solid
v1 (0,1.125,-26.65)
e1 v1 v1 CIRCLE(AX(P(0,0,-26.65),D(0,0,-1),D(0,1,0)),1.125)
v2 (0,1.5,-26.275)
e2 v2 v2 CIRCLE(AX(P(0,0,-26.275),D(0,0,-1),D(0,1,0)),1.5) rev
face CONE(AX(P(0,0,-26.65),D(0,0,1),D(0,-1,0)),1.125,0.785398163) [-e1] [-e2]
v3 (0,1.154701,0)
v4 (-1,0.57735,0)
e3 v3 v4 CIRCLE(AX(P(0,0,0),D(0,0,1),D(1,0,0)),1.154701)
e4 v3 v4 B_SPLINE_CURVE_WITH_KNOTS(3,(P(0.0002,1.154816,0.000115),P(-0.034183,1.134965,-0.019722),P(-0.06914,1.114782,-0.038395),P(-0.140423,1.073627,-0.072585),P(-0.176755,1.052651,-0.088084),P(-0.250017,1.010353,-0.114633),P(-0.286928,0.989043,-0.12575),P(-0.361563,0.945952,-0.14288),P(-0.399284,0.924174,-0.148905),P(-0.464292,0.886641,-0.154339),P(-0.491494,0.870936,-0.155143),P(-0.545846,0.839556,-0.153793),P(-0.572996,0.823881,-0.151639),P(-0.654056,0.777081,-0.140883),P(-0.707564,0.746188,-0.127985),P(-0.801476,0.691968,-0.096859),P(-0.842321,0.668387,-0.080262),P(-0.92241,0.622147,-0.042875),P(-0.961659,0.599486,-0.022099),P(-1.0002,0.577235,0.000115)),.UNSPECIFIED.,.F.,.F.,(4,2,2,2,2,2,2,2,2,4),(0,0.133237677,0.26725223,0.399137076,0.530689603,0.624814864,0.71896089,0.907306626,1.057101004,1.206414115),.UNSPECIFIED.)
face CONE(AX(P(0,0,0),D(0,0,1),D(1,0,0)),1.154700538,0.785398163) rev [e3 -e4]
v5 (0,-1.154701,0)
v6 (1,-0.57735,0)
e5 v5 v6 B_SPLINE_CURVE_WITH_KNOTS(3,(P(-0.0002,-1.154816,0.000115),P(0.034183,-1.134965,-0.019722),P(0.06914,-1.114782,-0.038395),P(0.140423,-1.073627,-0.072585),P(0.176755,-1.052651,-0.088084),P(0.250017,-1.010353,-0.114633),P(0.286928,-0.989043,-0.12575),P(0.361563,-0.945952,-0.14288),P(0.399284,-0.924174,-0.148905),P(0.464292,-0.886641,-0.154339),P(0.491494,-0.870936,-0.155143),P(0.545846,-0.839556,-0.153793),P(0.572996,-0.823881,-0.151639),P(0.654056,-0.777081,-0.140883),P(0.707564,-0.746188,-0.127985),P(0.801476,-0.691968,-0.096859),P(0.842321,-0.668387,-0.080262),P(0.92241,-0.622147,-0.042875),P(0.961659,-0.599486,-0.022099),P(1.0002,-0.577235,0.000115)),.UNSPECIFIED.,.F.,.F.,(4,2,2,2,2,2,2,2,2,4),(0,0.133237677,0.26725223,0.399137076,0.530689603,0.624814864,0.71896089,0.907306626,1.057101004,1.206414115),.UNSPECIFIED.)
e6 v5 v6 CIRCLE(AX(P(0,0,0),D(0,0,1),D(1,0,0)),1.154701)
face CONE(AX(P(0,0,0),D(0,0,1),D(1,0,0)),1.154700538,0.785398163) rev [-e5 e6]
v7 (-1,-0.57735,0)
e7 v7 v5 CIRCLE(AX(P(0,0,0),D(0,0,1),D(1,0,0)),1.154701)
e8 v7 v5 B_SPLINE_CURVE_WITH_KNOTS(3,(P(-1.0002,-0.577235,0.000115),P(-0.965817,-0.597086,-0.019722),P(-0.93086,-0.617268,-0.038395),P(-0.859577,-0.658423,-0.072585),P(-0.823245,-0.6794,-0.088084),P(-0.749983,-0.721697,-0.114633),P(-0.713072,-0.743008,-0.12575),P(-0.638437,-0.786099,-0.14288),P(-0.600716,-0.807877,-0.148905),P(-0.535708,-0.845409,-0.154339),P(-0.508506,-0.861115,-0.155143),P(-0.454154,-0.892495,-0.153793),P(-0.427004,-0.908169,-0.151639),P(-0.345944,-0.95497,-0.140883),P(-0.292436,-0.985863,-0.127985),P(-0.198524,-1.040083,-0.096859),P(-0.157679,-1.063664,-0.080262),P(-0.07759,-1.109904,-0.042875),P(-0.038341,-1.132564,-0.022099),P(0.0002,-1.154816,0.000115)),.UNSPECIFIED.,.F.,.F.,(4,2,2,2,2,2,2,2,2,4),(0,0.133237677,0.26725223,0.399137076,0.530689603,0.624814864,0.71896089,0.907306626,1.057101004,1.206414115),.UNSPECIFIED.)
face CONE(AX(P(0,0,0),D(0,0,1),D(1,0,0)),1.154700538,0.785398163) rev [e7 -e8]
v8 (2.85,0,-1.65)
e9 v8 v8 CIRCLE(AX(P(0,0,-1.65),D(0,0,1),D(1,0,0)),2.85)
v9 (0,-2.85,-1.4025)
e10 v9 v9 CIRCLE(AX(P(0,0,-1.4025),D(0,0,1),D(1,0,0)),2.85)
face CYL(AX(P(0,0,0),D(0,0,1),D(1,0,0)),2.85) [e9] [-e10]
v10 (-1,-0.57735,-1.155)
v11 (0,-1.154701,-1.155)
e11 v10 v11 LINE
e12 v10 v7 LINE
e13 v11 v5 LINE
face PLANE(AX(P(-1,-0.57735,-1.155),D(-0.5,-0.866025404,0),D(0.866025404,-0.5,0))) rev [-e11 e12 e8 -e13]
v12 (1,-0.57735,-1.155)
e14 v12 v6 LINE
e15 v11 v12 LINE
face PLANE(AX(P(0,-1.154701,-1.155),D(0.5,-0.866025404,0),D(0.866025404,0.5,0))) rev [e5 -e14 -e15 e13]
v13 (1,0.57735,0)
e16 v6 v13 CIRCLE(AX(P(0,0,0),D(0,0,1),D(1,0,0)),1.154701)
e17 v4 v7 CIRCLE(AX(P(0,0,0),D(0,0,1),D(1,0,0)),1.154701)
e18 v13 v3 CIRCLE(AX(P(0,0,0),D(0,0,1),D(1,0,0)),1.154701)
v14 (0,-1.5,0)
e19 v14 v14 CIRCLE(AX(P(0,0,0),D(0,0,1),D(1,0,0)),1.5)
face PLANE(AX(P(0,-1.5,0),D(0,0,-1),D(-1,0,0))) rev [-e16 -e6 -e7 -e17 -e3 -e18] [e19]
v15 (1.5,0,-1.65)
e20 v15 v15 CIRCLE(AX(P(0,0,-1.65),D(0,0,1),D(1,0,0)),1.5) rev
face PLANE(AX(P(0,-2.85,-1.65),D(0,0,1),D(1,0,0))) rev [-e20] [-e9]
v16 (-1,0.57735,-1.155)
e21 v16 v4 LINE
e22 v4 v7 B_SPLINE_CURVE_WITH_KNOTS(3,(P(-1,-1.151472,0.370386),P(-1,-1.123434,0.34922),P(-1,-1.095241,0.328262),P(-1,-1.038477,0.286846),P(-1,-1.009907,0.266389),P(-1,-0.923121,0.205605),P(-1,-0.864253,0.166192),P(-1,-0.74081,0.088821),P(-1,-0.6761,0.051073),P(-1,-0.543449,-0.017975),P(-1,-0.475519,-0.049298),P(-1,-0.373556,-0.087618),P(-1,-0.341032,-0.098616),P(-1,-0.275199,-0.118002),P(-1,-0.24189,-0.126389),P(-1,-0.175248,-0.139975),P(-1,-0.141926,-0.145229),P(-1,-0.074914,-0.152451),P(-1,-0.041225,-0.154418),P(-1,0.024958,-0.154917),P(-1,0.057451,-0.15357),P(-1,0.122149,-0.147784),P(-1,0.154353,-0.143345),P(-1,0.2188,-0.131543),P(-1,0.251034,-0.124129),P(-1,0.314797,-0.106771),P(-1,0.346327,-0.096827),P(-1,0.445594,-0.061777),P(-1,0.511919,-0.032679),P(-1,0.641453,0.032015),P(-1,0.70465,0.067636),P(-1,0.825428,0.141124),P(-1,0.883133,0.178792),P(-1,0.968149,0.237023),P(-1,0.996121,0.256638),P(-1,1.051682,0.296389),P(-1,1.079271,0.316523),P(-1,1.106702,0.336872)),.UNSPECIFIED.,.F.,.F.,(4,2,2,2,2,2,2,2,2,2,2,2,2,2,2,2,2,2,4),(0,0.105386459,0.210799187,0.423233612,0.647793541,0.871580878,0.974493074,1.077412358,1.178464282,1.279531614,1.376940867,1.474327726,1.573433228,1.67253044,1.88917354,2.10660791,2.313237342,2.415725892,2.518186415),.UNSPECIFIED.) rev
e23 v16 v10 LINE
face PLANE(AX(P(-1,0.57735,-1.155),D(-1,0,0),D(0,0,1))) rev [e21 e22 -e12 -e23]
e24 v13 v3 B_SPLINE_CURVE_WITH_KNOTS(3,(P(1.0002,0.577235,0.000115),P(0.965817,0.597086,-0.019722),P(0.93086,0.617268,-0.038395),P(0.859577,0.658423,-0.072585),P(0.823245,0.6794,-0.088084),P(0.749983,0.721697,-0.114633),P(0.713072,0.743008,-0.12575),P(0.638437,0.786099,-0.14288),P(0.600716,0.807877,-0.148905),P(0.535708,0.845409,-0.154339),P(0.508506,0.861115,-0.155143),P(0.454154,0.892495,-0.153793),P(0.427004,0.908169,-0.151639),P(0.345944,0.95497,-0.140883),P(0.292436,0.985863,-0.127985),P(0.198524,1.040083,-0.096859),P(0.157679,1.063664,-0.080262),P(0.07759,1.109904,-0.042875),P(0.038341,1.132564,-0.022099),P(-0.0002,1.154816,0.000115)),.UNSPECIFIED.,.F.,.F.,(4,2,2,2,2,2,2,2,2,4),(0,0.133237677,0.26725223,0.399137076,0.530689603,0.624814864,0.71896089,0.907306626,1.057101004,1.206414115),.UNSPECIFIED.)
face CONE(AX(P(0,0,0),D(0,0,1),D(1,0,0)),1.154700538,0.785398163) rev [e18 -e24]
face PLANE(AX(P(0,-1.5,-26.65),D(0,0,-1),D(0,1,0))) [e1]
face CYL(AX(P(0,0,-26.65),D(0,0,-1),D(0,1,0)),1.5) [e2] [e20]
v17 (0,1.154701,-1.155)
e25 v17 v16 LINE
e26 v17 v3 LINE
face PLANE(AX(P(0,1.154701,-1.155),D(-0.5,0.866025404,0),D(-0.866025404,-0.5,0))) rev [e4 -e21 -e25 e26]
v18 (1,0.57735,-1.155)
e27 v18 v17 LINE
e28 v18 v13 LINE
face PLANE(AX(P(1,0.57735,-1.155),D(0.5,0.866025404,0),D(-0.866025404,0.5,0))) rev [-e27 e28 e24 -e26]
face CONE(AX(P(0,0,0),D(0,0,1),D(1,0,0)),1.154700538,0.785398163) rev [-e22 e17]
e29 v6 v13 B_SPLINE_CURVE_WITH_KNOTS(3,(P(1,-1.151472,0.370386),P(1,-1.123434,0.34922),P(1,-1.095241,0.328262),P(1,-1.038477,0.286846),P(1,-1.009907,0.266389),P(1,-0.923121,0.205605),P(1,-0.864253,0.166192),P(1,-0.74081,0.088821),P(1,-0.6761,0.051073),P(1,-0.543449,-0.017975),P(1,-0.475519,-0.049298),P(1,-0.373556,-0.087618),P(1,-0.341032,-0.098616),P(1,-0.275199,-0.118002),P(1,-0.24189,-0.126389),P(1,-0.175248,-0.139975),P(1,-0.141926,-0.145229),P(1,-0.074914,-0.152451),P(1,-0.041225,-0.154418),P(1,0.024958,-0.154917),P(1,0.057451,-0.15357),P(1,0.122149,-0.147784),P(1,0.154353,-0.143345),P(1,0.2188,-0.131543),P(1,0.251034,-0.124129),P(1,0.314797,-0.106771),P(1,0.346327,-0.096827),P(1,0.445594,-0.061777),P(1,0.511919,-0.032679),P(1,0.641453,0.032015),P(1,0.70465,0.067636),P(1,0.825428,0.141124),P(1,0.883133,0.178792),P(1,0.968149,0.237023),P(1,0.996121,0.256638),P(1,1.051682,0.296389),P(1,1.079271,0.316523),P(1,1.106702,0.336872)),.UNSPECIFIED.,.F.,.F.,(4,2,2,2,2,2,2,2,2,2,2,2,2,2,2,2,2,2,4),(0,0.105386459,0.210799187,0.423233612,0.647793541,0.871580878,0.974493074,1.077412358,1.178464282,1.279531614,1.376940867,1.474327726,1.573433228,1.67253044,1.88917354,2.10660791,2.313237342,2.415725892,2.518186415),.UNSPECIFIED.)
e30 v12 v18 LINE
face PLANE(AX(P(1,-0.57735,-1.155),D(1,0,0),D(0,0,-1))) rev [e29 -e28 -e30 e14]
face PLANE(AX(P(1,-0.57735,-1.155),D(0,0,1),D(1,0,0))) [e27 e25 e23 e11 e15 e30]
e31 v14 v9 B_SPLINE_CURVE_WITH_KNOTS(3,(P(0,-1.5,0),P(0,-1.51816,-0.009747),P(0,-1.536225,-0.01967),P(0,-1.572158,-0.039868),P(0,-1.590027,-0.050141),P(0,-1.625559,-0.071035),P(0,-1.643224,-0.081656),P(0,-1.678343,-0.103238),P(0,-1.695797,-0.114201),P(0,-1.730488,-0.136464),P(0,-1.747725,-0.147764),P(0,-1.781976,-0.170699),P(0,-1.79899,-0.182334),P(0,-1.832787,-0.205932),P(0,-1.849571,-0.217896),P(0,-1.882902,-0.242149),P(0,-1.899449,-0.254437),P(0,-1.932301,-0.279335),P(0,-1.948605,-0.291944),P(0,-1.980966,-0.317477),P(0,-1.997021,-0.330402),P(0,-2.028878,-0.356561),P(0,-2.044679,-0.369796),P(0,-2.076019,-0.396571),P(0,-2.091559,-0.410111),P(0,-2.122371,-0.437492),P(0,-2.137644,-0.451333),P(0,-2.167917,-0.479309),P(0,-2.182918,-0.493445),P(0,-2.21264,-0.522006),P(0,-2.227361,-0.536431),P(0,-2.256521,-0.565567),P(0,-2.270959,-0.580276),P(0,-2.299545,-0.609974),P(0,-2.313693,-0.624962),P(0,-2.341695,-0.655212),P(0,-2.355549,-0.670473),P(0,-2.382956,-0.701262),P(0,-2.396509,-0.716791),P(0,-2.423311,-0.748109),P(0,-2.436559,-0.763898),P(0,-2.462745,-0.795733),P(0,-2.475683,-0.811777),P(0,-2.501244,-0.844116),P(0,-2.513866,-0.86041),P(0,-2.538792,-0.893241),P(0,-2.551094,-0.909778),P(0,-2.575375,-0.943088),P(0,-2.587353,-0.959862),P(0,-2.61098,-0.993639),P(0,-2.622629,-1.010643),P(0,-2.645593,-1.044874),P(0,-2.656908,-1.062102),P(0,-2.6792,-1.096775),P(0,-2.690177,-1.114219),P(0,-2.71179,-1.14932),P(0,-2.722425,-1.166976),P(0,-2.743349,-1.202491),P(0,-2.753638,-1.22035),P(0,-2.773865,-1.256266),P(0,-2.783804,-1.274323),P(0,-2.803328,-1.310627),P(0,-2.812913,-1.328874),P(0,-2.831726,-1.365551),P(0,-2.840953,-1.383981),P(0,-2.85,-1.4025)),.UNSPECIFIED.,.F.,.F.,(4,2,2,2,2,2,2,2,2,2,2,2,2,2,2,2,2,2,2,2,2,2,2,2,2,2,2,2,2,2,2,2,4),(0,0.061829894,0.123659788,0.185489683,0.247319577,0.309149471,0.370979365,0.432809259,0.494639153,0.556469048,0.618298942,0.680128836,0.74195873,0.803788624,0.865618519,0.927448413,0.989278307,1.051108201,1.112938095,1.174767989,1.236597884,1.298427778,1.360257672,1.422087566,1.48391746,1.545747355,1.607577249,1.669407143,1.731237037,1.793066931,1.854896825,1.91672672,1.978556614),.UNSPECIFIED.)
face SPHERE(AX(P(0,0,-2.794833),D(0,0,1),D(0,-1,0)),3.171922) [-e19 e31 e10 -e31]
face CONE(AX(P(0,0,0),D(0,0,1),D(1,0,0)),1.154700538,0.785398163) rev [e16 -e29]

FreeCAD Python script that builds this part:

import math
import FreeCAD as App
import Part
import Sketcher
from FreeCAD import Vector
Q = App.Units.Quantity


def edges_at(feature, points):
    """Names of the edges that pass closest to the given points."""
    edges = feature.Shape.Edges
    near = lambda p: min(range(len(edges)), key=lambda i: edges[i].distToShape(Part.Vertex(*p))[0])
    return sorted({f"Edge{near(p) + 1}" for p in points})

doc = App.newDocument("Part")
body = doc.addObject("PartDesign::Body", "Body")

# Sketch on YZ plane
sketch1 = body.newObject("Sketcher::SketchObject", "Sketch")
sketch1.AttachmentSupport = (doc.getObject("YZ_Plane"), [""])
sketch1.MapMode = "FlatFace"
sketch1.addGeometry(Part.LineSegment(Vector(1.5, -1.6, 0), Vector(0, -1.6, 0)), False)
sketch1.addGeometry(Part.LineSegment(Vector(0, -1.6, 0), Vector(0, -26.6, 0)), False)
sketch1.addGeometry(Part.LineSegment(Vector(0, -26.6, 0), Vector(1.5, -26.6, 0)), False)
sketch1.addGeometry(Part.LineSegment(Vector(1.5, -26.6, 0), Vector(1.5, -1.6, 0)), False)
sketch1.addConstraint(Sketcher.Constraint("Coincident", 0, 2, 1, 1))
sketch1.addConstraint(Sketcher.Constraint("Coincident", 1, 2, 2, 1))
sketch1.addConstraint(Sketcher.Constraint("Coincident", 2, 2, 3, 1))
sketch1.addConstraint(Sketcher.Constraint("Coincident", 3, 2, 0, 1))
sketch1.addConstraint(Sketcher.Constraint("Horizontal", 0))
sketch1.addConstraint(Sketcher.Constraint("Vertical", 1))
sketch1.addConstraint(Sketcher.Constraint("Horizontal", 2))
sketch1.addConstraint(Sketcher.Constraint("Vertical", 3))
sketch1.addConstraint(Sketcher.Constraint("PointOnObject", 0, 2, -2))
sketch1.addConstraint(Sketcher.Constraint("DistanceY", 1, 2, 1, 1, 25.0))
sketch1.addConstraint(Sketcher.Constraint("DistanceX", 0, 2, 0, 1, 1.5))
sketch1.addConstraint(Sketcher.Constraint("DistanceY", 0, 2, -1, 1, 1.65))
revolution = body.newObject("PartDesign::Revolution", "Revolution")
revolution.Profile = sketch1
revolution.ReferenceAxis = (sketch1, ["V_Axis"])
revolution.Angle = 360
doc.recompute()

chamfer = body.newObject("PartDesign::Chamfer", "Chamfer")
chamfer.Base = (revolution, edges_at(revolution, [(0, -1.5, -26.65)]))
chamfer.Size = 0.375

# Sketch on YZ plane
sketch2 = body.newObject("Sketcher::SketchObject", "Sketch001")
sketch2.AttachmentSupport = (doc.getObject("YZ_Plane"), [""])
sketch2.MapMode = "FlatFace"
sketch2.addGeometry(Part.LineSegment(Vector(2.85, -1.65, 0), Vector(2.85, -1.4, 0)), False)
sketch2.addGeometry(Part.ArcOfCircle(Part.Circle(Vector(0, -2.79, 0), Vector(0, 0, 1), 3.17), math.radians(26), math.radians(62)), False)
sketch2.addGeometry(Part.LineSegment(Vector(1.5, 0, 0), Vector(0, 0, 0)), False)
sketch2.addGeometry(Part.LineSegment(Vector(0, 0, 0), Vector(0, -1.65, 0)), False)
sketch2.addGeometry(Part.LineSegment(Vector(0, -1.65, 0), Vector(2.85, -1.65, 0)), False)
sketch2.addConstraint(Sketcher.Constraint("Coincident", 0, 2, 1, 1))
sketch2.addConstraint(Sketcher.Constraint("Coincident", 1, 2, 2, 1))
sketch2.addConstraint(Sketcher.Constraint("Coincident", 2, 2, 3, 1))
sketch2.addConstraint(Sketcher.Constraint("Coincident", 3, 2, 4, 1))
sketch2.addConstraint(Sketcher.Constraint("Coincident", 4, 2, 0, 1))
sketch2.addConstraint(Sketcher.Constraint("Vertical", 0))
sketch2.addConstraint(Sketcher.Constraint("Horizontal", 2))
sketch2.addConstraint(Sketcher.Constraint("Vertical", 3))
sketch2.addConstraint(Sketcher.Constraint("Horizontal", 4))
sketch2.addConstraint(Sketcher.Constraint("Coincident", 2, 2, -1, 1))
sketch2.addConstraint(Sketcher.Constraint("PointOnObject", 1, 3, -2))
sketch2.addConstraint(Sketcher.Constraint("DistanceX", 2, 2, 2, 1, 1.5))
sketch2.addConstraint(Sketcher.Constraint("DistanceX", 4, 1, 4, 2, 2.85))
sketch2.addConstraint(Sketcher.Constraint("DistanceY", 3, 2, 3, 1, 1.65))
sketch2.addConstraint(Sketcher.Constraint("DistanceY", 0, 1, 0, 2, 0.2475))
revolution2 = body.newObject("PartDesign::Revolution", "Revolution001")
revolution2.Profile = sketch2
revolution2.ReferenceAxis = (sketch2, ["V_Axis"])
revolution2.Angle = 360

# Sketch on XY plane
sketch3 = body.newObject("Sketcher::SketchObject", "Sketch002")
sketch3.AttachmentSupport = (doc.getObject("XY_Plane"), [""])
sketch3.MapMode = "FlatFace"
sketch3.addGeometry(Part.LineSegment(Vector(1, -0.6, 0), Vector(1, 0.6, 0)), False)
sketch3.addGeometry(Part.LineSegment(Vector(1, 0.6, 0), Vector(0, 1.2, 0)), False)
sketch3.addGeometry(Part.LineSegment(Vector(0, 1.2, 0), Vector(-1, 0.6, 0)), False)
sketch3.addGeometry(Part.LineSegment(Vector(-1, 0.6, 0), Vector(-1, -0.6, 0)), False)
sketch3.addGeometry(Part.LineSegment(Vector(-1, -0.6, 0), Vector(0, -1.2, 0)), False)
sketch3.addGeometry(Part.LineSegment(Vector(0, -1.2, 0), Vector(1, -0.6, 0)), False)
sketch3.addConstraint(Sketcher.Constraint("Coincident", 0, 2, 1, 1))
sketch3.addConstraint(Sketcher.Constraint("Coincident", 1, 2, 2, 1))
sketch3.addConstraint(Sketcher.Constraint("Coincident", 2, 2, 3, 1))
sketch3.addConstraint(Sketcher.Constraint("Coincident", 3, 2, 4, 1))
sketch3.addConstraint(Sketcher.Constraint("Coincident", 4, 2, 5, 1))
sketch3.addConstraint(Sketcher.Constraint("Coincident", 5, 2, 0, 1))
sketch3.addConstraint(Sketcher.Constraint("Vertical", 0))
sketch3.addConstraint(Sketcher.Constraint("Vertical", 3))
sketch3.addConstraint(Sketcher.Constraint("Symmetric", 0, 2, 3, 2, -1, 1))
sketch3.addConstraint(Sketcher.Constraint("Symmetric", 1, 2, 4, 2, -1, 1))
sketch3.addConstraint(Sketcher.Constraint("PointOnObject", 1, 2, -2))
sketch3.addConstraint(Sketcher.Constraint("Parallel", 2, 5))
sketch3.addConstraint(Sketcher.Constraint("Horizontal", 0, 2, 2, 2))
sketch3.addConstraint(Sketcher.Constraint("Angle", 1, Q("150 deg")))
sketch3.addConstraint(Sketcher.Constraint("DistanceX", -1, 1, 0, 2, 1.0))
sketch3.addConstraint(Sketcher.Constraint("DistanceY", 0, 1, 0, 2, 1.154701))
pocket1 = body.newObject("PartDesign::Pocket", "Pocket")
pocket1.Profile = sketch3
pocket1.Length = 1.155

# Sketch on YZ plane
sketch4 = body.newObject("Sketcher::SketchObject", "Sketch003")
sketch4.AttachmentSupport = (doc.getObject("YZ_Plane"), [""])
sketch4.MapMode = "FlatFace"
sketch4.addGeometry(Part.LineSegment(Vector(0, 0, 0), Vector(-1.2, 0, 0)), False)
sketch4.addGeometry(Part.LineSegment(Vector(-1.2, 0, 0), Vector(0, -1.2, 0)), False)
sketch4.addGeometry(Part.LineSegment(Vector(0, -1.2, 0), Vector(0, 0, 0)), False)
sketch4.addConstraint(Sketcher.Constraint("Coincident", 0, 2, 1, 1))
sketch4.addConstraint(Sketcher.Constraint("Coincident", 1, 2, 2, 1))
sketch4.addConstraint(Sketcher.Constraint("Coincident", 2, 2, 0, 1))
sketch4.addConstraint(Sketcher.Constraint("Horizontal", 0))
sketch4.addConstraint(Sketcher.Constraint("Vertical", 2))
sketch4.addConstraint(Sketcher.Constraint("Coincident", 2, 2, -1, 1))
sketch4.addConstraint(Sketcher.Constraint("Equal", 0, 2))
sketch4.addConstraint(Sketcher.Constraint("DistanceX", 0, 2, 0, 1, 1.154701))
groove = body.newObject("PartDesign::Groove", "Groove")
groove.Profile = sketch4
groove.ReferenceAxis = (sketch4, ["V_Axis"])
groove.Angle = 360

doc.recompute()
